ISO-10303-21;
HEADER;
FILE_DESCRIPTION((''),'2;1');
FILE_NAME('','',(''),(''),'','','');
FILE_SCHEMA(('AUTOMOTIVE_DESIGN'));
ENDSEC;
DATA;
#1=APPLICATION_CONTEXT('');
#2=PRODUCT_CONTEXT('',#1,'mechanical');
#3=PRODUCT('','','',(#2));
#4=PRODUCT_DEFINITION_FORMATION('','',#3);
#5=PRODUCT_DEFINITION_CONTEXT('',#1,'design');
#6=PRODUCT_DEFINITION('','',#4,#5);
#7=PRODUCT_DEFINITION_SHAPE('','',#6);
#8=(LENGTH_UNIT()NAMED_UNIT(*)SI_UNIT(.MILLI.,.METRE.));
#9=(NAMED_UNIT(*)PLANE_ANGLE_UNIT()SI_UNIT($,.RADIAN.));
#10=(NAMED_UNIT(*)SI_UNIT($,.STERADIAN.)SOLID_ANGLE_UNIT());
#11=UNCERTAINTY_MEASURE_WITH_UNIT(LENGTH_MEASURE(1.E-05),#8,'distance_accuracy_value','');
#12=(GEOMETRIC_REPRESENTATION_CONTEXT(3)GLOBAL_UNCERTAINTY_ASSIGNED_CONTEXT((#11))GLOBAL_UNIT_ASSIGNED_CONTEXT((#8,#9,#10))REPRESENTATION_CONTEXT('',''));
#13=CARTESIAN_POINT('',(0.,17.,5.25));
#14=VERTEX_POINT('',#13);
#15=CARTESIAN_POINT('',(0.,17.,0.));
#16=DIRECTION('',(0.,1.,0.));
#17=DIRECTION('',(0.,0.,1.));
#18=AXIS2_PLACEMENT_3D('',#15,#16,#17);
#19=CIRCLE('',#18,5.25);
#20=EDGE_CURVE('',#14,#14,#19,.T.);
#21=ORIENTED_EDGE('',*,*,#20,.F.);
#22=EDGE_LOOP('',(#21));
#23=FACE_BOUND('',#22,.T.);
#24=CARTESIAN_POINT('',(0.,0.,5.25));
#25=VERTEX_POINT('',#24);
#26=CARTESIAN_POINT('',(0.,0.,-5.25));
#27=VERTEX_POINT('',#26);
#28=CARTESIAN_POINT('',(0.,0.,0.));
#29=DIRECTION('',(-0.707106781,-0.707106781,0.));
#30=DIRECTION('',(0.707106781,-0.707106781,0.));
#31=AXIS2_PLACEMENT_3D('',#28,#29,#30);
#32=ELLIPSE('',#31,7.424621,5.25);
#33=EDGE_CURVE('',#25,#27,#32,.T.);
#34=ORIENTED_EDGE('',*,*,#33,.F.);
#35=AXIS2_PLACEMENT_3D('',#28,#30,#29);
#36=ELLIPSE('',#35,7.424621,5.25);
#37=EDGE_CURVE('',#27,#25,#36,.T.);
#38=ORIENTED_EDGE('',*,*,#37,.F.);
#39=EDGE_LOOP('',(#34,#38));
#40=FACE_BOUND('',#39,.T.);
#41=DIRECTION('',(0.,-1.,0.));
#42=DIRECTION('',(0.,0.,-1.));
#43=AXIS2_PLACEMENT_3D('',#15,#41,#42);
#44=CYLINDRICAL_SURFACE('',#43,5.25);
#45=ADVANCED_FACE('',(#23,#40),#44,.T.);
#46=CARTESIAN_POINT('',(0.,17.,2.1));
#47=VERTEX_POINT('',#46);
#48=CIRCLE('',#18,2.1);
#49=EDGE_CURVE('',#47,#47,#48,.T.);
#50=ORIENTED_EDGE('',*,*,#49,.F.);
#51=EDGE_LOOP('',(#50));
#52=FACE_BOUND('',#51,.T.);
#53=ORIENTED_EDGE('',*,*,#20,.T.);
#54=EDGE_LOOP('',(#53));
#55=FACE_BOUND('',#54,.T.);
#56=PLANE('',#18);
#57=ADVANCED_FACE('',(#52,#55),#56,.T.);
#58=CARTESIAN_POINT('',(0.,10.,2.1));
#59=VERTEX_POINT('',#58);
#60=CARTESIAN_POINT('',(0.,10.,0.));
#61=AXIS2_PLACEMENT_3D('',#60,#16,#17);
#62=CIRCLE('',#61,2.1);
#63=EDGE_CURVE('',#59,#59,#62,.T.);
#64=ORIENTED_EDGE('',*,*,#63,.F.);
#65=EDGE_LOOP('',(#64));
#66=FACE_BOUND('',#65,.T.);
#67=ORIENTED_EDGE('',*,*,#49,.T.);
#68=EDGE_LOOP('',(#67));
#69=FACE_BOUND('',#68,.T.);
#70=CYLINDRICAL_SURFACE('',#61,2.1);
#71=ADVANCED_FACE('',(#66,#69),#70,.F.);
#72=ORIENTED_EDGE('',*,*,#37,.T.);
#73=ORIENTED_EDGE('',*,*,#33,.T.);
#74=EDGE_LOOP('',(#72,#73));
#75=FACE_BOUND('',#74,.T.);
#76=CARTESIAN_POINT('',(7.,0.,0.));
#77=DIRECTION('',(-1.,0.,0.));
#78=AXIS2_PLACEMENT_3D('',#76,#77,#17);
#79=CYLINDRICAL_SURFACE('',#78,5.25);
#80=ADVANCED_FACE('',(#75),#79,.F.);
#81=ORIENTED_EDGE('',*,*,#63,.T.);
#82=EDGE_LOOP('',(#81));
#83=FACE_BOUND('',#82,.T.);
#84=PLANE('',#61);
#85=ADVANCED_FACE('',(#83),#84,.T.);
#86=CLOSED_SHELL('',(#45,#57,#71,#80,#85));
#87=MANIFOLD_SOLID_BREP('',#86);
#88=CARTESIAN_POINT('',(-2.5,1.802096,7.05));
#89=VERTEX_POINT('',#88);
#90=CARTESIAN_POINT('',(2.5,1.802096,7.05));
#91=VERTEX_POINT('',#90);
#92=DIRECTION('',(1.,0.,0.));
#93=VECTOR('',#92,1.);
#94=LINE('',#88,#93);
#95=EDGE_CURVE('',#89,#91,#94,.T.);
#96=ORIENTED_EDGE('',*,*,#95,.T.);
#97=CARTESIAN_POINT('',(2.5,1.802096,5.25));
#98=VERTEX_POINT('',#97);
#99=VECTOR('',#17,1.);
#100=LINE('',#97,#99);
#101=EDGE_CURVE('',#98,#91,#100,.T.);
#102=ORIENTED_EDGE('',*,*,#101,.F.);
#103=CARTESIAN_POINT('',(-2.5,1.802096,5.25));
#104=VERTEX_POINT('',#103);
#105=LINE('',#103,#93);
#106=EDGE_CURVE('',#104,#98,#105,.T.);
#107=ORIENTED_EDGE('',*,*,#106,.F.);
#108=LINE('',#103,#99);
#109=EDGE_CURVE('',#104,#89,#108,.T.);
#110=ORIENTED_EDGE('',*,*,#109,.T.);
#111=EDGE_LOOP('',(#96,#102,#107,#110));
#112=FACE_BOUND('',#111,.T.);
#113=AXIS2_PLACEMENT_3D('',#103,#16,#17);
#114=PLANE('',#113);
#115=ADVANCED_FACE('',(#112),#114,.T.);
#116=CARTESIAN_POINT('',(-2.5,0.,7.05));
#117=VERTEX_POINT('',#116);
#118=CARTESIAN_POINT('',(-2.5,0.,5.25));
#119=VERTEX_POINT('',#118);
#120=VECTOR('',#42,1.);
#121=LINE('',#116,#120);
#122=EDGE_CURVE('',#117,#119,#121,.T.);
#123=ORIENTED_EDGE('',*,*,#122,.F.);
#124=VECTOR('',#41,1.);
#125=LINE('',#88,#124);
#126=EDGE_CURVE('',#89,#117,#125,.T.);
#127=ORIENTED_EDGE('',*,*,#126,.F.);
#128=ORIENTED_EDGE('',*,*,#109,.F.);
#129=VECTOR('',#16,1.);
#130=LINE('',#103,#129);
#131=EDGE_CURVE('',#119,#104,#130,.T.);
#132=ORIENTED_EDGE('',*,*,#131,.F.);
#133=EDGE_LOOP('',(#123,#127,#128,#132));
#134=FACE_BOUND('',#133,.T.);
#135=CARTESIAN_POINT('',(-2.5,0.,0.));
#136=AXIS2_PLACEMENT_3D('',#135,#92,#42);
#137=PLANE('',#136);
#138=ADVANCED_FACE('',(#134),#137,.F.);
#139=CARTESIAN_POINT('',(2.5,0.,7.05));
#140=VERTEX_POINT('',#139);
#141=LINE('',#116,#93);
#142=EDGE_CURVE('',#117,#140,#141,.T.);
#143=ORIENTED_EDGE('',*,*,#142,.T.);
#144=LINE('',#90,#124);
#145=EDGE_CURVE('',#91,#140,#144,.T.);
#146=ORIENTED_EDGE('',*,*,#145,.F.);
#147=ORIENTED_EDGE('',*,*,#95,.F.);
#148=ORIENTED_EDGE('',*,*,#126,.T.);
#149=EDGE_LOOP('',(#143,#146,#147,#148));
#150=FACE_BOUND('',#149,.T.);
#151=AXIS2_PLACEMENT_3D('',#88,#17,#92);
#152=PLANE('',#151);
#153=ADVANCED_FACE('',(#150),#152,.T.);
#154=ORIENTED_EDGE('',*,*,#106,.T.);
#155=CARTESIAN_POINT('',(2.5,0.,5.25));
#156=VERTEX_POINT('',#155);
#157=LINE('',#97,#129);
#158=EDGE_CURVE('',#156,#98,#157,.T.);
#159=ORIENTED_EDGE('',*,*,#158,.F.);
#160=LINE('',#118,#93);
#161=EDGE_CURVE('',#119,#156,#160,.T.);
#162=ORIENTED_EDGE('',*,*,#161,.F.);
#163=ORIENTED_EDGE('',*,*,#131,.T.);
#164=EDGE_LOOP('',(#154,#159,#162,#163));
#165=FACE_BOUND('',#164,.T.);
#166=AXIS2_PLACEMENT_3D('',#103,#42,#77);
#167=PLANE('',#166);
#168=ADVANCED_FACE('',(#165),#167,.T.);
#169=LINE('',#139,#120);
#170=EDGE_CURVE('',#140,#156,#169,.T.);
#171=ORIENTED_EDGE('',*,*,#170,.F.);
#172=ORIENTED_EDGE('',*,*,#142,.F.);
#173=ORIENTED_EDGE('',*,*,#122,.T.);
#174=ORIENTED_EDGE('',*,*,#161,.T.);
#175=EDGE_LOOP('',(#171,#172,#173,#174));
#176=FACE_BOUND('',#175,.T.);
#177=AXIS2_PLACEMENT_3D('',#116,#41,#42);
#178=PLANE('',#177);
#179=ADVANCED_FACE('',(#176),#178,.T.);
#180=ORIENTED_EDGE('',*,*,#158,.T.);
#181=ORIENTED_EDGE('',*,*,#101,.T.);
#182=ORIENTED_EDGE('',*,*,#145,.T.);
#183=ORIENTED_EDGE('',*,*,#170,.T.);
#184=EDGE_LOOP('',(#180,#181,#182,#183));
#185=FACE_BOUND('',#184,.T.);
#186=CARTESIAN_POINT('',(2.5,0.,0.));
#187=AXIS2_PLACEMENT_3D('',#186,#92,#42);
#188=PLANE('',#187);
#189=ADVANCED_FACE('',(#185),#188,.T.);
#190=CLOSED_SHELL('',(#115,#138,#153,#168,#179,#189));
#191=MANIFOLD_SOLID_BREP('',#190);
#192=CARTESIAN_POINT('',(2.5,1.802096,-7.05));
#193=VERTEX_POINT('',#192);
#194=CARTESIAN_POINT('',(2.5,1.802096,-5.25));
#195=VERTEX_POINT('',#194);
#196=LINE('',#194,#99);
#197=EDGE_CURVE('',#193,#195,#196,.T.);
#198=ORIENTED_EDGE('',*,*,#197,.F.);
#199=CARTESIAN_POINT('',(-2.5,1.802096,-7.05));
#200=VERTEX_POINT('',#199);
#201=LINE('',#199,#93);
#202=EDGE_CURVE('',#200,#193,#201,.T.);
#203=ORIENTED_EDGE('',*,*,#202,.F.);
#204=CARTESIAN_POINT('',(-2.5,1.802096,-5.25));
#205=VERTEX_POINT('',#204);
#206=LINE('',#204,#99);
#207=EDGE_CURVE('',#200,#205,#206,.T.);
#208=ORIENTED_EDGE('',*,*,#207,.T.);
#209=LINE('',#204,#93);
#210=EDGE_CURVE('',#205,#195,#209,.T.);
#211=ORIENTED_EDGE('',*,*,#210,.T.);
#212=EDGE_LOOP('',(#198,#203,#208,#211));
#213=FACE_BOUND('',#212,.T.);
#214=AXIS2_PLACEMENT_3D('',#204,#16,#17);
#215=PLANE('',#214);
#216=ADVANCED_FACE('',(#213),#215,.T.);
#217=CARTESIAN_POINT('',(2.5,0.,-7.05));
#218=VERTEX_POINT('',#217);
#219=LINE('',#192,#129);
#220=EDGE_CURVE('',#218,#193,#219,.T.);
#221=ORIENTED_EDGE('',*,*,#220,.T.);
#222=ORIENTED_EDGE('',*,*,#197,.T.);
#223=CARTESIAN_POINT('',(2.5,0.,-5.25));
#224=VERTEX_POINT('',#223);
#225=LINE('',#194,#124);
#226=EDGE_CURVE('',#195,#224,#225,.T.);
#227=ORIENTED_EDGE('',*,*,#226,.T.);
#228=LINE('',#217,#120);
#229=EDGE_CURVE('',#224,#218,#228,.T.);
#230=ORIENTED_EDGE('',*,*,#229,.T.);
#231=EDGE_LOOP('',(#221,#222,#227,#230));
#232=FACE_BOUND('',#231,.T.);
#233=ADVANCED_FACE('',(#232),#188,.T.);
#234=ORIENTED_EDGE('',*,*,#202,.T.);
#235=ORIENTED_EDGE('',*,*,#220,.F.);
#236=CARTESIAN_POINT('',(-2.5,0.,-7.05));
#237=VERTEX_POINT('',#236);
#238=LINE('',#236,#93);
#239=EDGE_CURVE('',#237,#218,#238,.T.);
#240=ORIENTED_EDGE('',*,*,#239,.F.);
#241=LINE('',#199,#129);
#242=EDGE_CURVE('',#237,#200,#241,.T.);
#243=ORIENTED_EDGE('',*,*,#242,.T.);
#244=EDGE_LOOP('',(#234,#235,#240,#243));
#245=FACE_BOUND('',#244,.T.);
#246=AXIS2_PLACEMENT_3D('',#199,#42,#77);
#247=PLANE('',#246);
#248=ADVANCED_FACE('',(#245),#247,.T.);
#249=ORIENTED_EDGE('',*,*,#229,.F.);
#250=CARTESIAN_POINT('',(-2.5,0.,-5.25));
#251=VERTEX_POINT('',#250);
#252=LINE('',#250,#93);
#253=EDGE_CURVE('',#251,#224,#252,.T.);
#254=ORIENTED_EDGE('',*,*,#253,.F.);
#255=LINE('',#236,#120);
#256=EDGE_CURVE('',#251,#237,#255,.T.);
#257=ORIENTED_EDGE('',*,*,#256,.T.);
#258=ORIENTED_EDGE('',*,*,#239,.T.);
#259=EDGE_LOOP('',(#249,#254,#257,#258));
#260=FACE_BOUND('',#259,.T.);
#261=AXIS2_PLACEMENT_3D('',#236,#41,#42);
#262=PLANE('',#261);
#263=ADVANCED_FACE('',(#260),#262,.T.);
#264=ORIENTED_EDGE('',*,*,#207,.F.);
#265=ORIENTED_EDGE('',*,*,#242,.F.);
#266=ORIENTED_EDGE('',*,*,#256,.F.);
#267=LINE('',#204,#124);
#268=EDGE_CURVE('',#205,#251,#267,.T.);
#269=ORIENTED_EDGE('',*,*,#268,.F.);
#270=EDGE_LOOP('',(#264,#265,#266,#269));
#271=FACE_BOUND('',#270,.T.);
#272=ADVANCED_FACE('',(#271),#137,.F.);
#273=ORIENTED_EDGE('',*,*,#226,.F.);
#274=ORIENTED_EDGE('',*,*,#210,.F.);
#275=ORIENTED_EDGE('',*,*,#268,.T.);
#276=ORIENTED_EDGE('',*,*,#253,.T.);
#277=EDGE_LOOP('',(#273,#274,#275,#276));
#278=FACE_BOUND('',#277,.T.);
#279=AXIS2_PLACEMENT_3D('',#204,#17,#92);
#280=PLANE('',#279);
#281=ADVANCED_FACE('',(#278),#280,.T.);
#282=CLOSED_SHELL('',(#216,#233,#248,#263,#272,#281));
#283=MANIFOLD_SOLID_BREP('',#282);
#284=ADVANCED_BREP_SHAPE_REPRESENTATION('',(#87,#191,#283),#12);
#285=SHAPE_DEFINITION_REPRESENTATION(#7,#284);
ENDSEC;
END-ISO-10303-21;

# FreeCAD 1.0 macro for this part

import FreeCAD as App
import Part
import Sketcher
from FreeCAD import Vector
Q = App.Units.Quantity


def add_polygon(sketch, points):
    """Adds a closed chain of lines whose ends are joined by coincident constraints."""
    first, n = sketch.GeometryCount, len(points)
    for a, b in zip(points, points[1:] + points[:1]):
        sketch.addGeometry(Part.LineSegment(App.Vector(*a, 0), App.Vector(*b, 0)), False)
    for i in range(n):
        sketch.addConstraint(Sketcher.Constraint("Coincident", first + i, 2, first + (i + 1) % n, 1))

doc = App.newDocument("Part")
body = doc.addObject("PartDesign::Body", "Body")

sketch1 = doc.addObject("Sketcher::SketchObject", "Sketch")
body.addObject(sketch1)
sketch1.AttachmentSupport = (doc.XZ_Plane, [""])
sketch1.MapMode = "FlatFace"
sketch1.addGeometry(Part.Circle(Vector(0, 0, 0), Vector(0, 0, 1), 5), False)
sketch1.addConstraint(Sketcher.Constraint("Coincident", 0, 3, -1, 1))
sketch1.addConstraint(Sketcher.Constraint("Diameter", 0, Q("10.5 mm")))
pad1 = doc.addObject("PartDesign::Pad", "Pad")
body.addObject(pad1)
pad1.Profile = sketch1
pad1.Length = 17
pad1.Reversed = True

sketch2 = doc.addObject("Sketcher::SketchObject", "Sketch001")
body.addObject(sketch2)
sketch2.AttachmentSupport = (doc.XZ_Plane, [""])
sketch2.MapMode = "FlatFace"
sketch2.AttachmentOffset = App.Placement(Vector(0, 0, -17), App.Rotation())
sketch2.addGeometry(Part.Circle(Vector(0, 0, 0), Vector(0, 0, 1), 2.1), False)
sketch2.addConstraint(Sketcher.Constraint("Coincident", 0, 3, -1, 1))
sketch2.addConstraint(Sketcher.Constraint("Diameter", 0, Q("4.2 mm")))
pocket1 = doc.addObject("PartDesign::Pocket", "Pocket")
body.addObject(pocket1)
pocket1.Profile = sketch2
pocket1.Length = 7
pocket1.Reversed = True

sketch3 = doc.addObject("Sketcher::SketchObject", "Sketch002")
body.addObject(sketch3)
sketch3.AttachmentSupport = (doc.YZ_Plane, [""])
sketch3.MapMode = "FlatFace"
sketch3.addGeometry(Part.Circle(Vector(0, 0, 0), Vector(0, 0, 1), 5), False)
sketch3.addConstraint(Sketcher.Constraint("Coincident", 0, 3, -1, 1))
sketch3.addConstraint(Sketcher.Constraint("Diameter", 0, Q("10.5 mm")))
pocket2 = doc.addObject("PartDesign::Pocket", "Pocket001")
body.addObject(pocket2)
pocket2.Profile = sketch3
pocket2.Type = "ThroughAll"
pocket2.Midplane = True
body2 = doc.addObject("PartDesign::Body", "Body001")

sketch4 = doc.addObject("Sketcher::SketchObject", "Sketch003")
body2.addObject(sketch4)
sketch4.AttachmentSupport = (doc.getObject("YZ_Plane001"), [""])
sketch4.MapMode = "FlatFace"
add_polygon(sketch4, [(1.8, -5.2), (0, -5.2), (0, -7), (1.8, -7)])
sketch4.addConstraint(Sketcher.Constraint("Horizontal", 0))
sketch4.addConstraint(Sketcher.Constraint("Vertical", 1))
sketch4.addConstraint(Sketcher.Constraint("Horizontal", 2))
sketch4.addConstraint(Sketcher.Constraint("Vertical", 3))
sketch4.addConstraint(Sketcher.Constraint("PointOnObject", 0, 2, -2))
sketch4.addConstraint(Sketcher.Constraint("DistanceY", 1, 2, 1, 1, Q("1.8 mm")))
sketch4.addConstraint(Sketcher.Constraint("DistanceY", 0, 2, -1, 1, Q("5.25 mm")))
sketch4.addConstraint(Sketcher.Constraint("DistanceX", 0, 2, 0, 1, Q("1.802096 mm")))
pad2 = doc.addObject("PartDesign::Pad", "Pad001")
body2.addObject(pad2)
pad2.Profile = sketch4
pad2.Type = "TwoLengths"
pad2.Length = 2.5
pad2.Length2 = 2.5
body3 = doc.addObject("PartDesign::Body", "Body002")

sketch5 = doc.addObject("Sketcher::SketchObject", "Sketch004")
body3.addObject(sketch5)
sketch5.AttachmentSupport = (doc.getObject("YZ_Plane002"), [""])
sketch5.MapMode = "FlatFace"
add_polygon(sketch5, [(1.8, 7), (0, 7), (0, 5.2), (1.8, 5.2)])
sketch5.addConstraint(Sketcher.Constraint("Horizontal", 0))
sketch5.addConstraint(Sketcher.Constraint("Vertical", 1))
sketch5.addConstraint(Sketcher.Constraint("Horizontal", 2))
sketch5.addConstraint(Sketcher.Constraint("Vertical", 3))
sketch5.addConstraint(Sketcher.Constraint("PointOnObject", 0, 2, -2))
sketch5.addConstraint(Sketcher.Constraint("DistanceY", 1, 2, 1, 1, Q("1.8 mm")))
sketch5.addConstraint(Sketcher.Constraint("DistanceY", -1, 1, 0, 2, Q("7.05 mm")))
sketch5.addConstraint(Sketcher.Constraint("DistanceX", 0, 2, 0, 1, Q("1.802096 mm")))
pad3 = doc.addObject("PartDesign::Pad", "Pad002")
body3.addObject(pad3)
pad3.Profile = sketch5
pad3.Type = "TwoLengths"
pad3.Length = 2.5
pad3.Length2 = 2.5

doc.recompute()
